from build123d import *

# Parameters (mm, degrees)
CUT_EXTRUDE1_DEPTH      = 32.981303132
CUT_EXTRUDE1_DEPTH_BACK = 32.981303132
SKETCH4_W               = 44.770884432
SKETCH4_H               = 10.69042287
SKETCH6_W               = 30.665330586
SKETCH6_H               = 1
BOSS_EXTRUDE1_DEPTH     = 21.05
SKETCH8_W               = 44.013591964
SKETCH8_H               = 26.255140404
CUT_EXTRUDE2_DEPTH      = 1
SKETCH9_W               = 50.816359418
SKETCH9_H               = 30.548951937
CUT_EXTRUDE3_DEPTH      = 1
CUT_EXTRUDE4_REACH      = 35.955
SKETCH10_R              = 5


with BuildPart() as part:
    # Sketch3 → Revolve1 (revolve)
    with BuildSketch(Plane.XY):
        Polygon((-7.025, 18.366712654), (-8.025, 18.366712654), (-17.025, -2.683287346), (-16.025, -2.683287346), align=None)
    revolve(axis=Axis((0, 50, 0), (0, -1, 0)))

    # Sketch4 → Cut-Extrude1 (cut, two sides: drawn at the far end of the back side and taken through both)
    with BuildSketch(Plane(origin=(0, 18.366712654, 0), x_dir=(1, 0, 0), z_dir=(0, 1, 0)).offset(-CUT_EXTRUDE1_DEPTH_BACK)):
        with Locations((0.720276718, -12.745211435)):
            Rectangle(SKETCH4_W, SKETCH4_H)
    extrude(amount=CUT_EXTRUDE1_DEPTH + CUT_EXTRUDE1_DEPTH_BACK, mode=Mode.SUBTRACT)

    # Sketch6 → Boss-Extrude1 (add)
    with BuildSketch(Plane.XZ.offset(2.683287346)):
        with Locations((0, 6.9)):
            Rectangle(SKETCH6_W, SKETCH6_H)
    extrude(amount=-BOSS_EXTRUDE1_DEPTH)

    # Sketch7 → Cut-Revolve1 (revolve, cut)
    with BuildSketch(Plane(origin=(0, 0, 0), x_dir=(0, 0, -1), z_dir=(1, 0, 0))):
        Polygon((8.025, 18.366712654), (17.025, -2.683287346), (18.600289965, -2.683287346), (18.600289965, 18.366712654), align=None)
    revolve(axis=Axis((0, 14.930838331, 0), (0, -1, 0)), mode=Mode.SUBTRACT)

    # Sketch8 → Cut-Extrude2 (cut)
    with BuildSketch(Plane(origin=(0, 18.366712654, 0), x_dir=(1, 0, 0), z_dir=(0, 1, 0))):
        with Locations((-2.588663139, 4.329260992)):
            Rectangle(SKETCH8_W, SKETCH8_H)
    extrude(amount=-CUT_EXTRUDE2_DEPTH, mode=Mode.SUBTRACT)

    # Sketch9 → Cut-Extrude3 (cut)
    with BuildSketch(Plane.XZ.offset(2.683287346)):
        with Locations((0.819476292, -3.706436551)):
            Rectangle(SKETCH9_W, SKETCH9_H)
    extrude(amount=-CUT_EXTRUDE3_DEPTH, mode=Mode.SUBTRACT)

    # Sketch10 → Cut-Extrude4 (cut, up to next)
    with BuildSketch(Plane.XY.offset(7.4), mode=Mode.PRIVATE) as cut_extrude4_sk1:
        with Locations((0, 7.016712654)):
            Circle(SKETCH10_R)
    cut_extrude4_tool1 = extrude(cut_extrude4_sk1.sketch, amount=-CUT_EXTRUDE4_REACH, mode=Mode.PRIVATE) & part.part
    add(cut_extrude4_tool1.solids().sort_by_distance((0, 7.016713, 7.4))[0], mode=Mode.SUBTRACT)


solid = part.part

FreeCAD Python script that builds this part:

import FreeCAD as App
import Part
import Sketcher

V = App.Vector

doc = App.newDocument("Part")
body = doc.addObject("PartDesign::Body", "Body")

sketch1 = body.newObject("Sketcher::SketchObject", "Sketch")
sketch1.AttachmentSupport = (doc.getObject("XY_Plane"), [""])
sketch1.MapMode = "FlatFace"
sketch1.addGeometry([
    Part.LineSegment(V(-7, 18.4, 0), V(-8, 18.4, 0)),
    Part.LineSegment(V(-8, 18.4, 0), V(-17, -2.7, 0)),
    Part.LineSegment(V(-17, -2.7, 0), V(-16, -2.7, 0)),
    Part.LineSegment(V(-16, -2.7, 0), V(-7, 18.4, 0)),
], False)
sketch1.addConstraint([
    Sketcher.Constraint("Coincident", 0, 2, 1, 1),
    Sketcher.Constraint("Coincident", 1, 2, 2, 1),
    Sketcher.Constraint("Coincident", 2, 2, 3, 1),
    Sketcher.Constraint("Coincident", 3, 2, 0, 1),
    Sketcher.Constraint("Horizontal", 0),
    Sketcher.Constraint("Horizontal", 2),
    Sketcher.Constraint("Parallel", 1, 3),
    Sketcher.Constraint("DistanceX", 0, 2, 0, 1, 1.0),
    Sketcher.Constraint("DistanceX", 1, 2, 0, 2, 9.0),
    Sketcher.Constraint("DistanceY", 1, 2, 0, 2, 21.05),
    Sketcher.Constraint("DistanceX", 0, 2, -1, 1, 8.025),
    Sketcher.Constraint("DistanceY", -1, 1, 0, 2, 18.366713),
])
revolution = body.newObject("PartDesign::Revolution", "Revolution")
revolution.Profile = sketch1
revolution.ReferenceAxis = (sketch1, ["V_Axis"])
revolution.Angle = 360

sketch2 = body.newObject("Sketcher::SketchObject", "Sketch001")
sketch2.AttachmentSupport = (doc.getObject("XZ_Plane"), [""])
sketch2.MapMode = "FlatFace"
sketch2.AttachmentOffset = App.Placement(V(0, 0, -18.366713), App.Rotation())
sketch2.addGeometry([
    Part.LineSegment(V(-22, 7, 0), V(-22, 18, 0)),
    Part.LineSegment(V(-22, 18, 0), V(23, 18, 0)),
    Part.LineSegment(V(23, 18, 0), V(23, 7, 0)),
    Part.LineSegment(V(23, 7, 0), V(-22, 7, 0)),
], False)
sketch2.addConstraint([
    Sketcher.Constraint("Coincident", 0, 2, 1, 1),
    Sketcher.Constraint("Coincident", 1, 2, 2, 1),
    Sketcher.Constraint("Coincident", 2, 2, 3, 1),
    Sketcher.Constraint("Coincident", 3, 2, 0, 1),
    Sketcher.Constraint("Vertical", 0),
    Sketcher.Constraint("Horizontal", 1),
    Sketcher.Constraint("Vertical", 2),
    Sketcher.Constraint("Horizontal", 3),
    Sketcher.Constraint("DistanceY", -1, 1, 2, 2, 7.4),
    Sketcher.Constraint("DistanceX", 1, 1, 1, 2, 44.770884),
    Sketcher.Constraint("DistanceY", 0, 1, 0, 2, 10.690423),
    Sketcher.Constraint("DistanceX", -1, 1, 1, 2, 23.105719),
])
pocket1 = body.newObject("PartDesign::Pocket", "Pocket")
pocket1.Profile = sketch2
pocket1.Type = "ThroughAll"
pocket1.Midplane = True

sketch3 = body.newObject("Sketcher::SketchObject", "Sketch002")
sketch3.AttachmentSupport = (doc.getObject("XZ_Plane"), [""])
sketch3.MapMode = "FlatFace"
sketch3.AttachmentOffset = App.Placement(V(0, 0, 2.683287), App.Rotation())
sketch3.addGeometry([
    Part.LineSegment(V(-15.3, 7.4, 0), V(-15.3, 6.4, 0)),
    Part.LineSegment(V(-15.3, 6.4, 0), V(15.3, 6.4, 0)),
    Part.LineSegment(V(15.3, 6.4, 0), V(15.3, 7.4, 0)),
    Part.LineSegment(V(15.3, 7.4, 0), V(-15.3, 7.4, 0)),
], False)
sketch3.addConstraint([
    Sketcher.Constraint("Coincident", 0, 2, 1, 1),
    Sketcher.Constraint("Coincident", 1, 2, 2, 1),
    Sketcher.Constraint("Coincident", 2, 2, 3, 1),
    Sketcher.Constraint("Coincident", 3, 2, 0, 1),
    Sketcher.Constraint("Vertical", 0),
    Sketcher.Constraint("Horizontal", 1),
    Sketcher.Constraint("Vertical", 2),
    Sketcher.Constraint("Horizontal", 3),
    Sketcher.Constraint("DistanceY", 0, 2, 0, 1, 1.0),
    Sketcher.Constraint("DistanceY", -1, 1, 0, 2, 6.4),
    Sketcher.Constraint("DistanceX", 1, 1, 1, 2, 30.665331),
    Sketcher.Constraint("DistanceX", 0, 2, -1, 1, 15.332665),
])
pad1 = body.newObject("PartDesign::Pad", "Pad")
pad1.Profile = sketch3
pad1.Length = 21.05
pad1.Reversed = True

sketch4 = body.newObject("Sketcher::SketchObject", "Sketch003")
sketch4.AttachmentSupport = (doc.getObject("YZ_Plane"), [""])
sketch4.MapMode = "FlatFace"
sketch4.addGeometry([
    Part.LineSegment(V(18.4, -8, 0), V(-2.7, -17, 0)),
    Part.LineSegment(V(-2.7, -17, 0), V(-2.7, -18.6, 0)),
    Part.LineSegment(V(-2.7, -18.6, 0), V(18.4, -18.6, 0)),
    Part.LineSegment(V(18.4, -18.6, 0), V(18.4, -8, 0)),
], False)
sketch4.addConstraint([
    Sketcher.Constraint("Coincident", 0, 2, 1, 1),
    Sketcher.Constraint("Coincident", 1, 2, 2, 1),
    Sketcher.Constraint("Coincident", 2, 2, 3, 1),
    Sketcher.Constraint("Coincident", 3, 2, 0, 1),
    Sketcher.Constraint("Vertical", 1),
    Sketcher.Constraint("Horizontal", 2),
    Sketcher.Constraint("Vertical", 3),
    Sketcher.Constraint("DistanceY", 0, 2, 3, 2, 9.0),
    Sketcher.Constraint("DistanceX", 2, 1, 2, 2, 21.05),
    Sketcher.Constraint("DistanceY", 0, 2, -1, 1, 17.025),
    Sketcher.Constraint("DistanceY", 1, 2, 1, 1, 1.57529),
    Sketcher.Constraint("DistanceX", 0, 2, -1, 1, 2.683287),
])
groove = body.newObject("PartDesign::Groove", "Groove")
groove.Profile = sketch4
groove.ReferenceAxis = (sketch4, ["H_Axis"])
groove.Angle = 360

sketch5 = body.newObject("Sketcher::SketchObject", "Sketch004")
sketch5.AttachmentSupport = (doc.getObject("XZ_Plane"), [""])
sketch5.MapMode = "FlatFace"
sketch5.AttachmentOffset = App.Placement(V(0, 0, -18.366713), App.Rotation())
sketch5.addGeometry([
    Part.LineSegment(V(-25, -17, 0), V(-25, 9, 0)),
    Part.LineSegment(V(-25, 9, 0), V(19, 9, 0)),
    Part.LineSegment(V(19, 9, 0), V(19, -17, 0)),
    Part.LineSegment(V(19, -17, 0), V(-25, -17, 0)),
], False)
sketch5.addConstraint([
    Sketcher.Constraint("Coincident", 0, 2, 1, 1),
    Sketcher.Constraint("Coincident", 1, 2, 2, 1),
    Sketcher.Constraint("Coincident", 2, 2, 3, 1),
    Sketcher.Constraint("Coincident", 3, 2, 0, 1),
    Sketcher.Constraint("Vertical", 0),
    Sketcher.Constraint("Horizontal", 1),
    Sketcher.Constraint("Vertical", 2),
    Sketcher.Constraint("Horizontal", 3),
    Sketcher.Constraint("DistanceX", 1, 1, 1, 2, 44.013592),
    Sketcher.Constraint("DistanceY", 0, 1, 0, 2, 26.25514),
    Sketcher.Constraint("DistanceX", 0, 2, -1, 1, 24.595459),
    Sketcher.Constraint("DistanceY", -1, 1, 0, 2, 8.798309),
])
pocket2 = body.newObject("PartDesign::Pocket", "Pocket001")
pocket2.Profile = sketch5
pocket2.Length = 1
pocket2.Reversed = True

sketch6 = body.newObject("Sketcher::SketchObject", "Sketch005")
sketch6.AttachmentSupport = (doc.getObject("XZ_Plane"), [""])
sketch6.MapMode = "FlatFace"
sketch6.AttachmentOffset = App.Placement(V(0, 0, 2.683287), App.Rotation())
sketch6.addGeometry([
    Part.LineSegment(V(-25, 12, 0), V(-25, -19, 0)),
    Part.LineSegment(V(-25, -19, 0), V(26, -19, 0)),
    Part.LineSegment(V(26, -19, 0), V(26, 12, 0)),
    Part.LineSegment(V(26, 12, 0), V(-25, 12, 0)),
], False)
sketch6.addConstraint([
    Sketcher.Constraint("Coincident", 0, 2, 1, 1),
    Sketcher.Constraint("Coincident", 1, 2, 2, 1),
    Sketcher.Constraint("Coincident", 2, 2, 3, 1),
    Sketcher.Constraint("Coincident", 3, 2, 0, 1),
    Sketcher.Constraint("Vertical", 0),
    Sketcher.Constraint("Horizontal", 1),
    Sketcher.Constraint("Vertical", 2),
    Sketcher.Constraint("Horizontal", 3),
    Sketcher.Constraint("DistanceX", 1, 1, 1, 2, 50.816359),
    Sketcher.Constraint("DistanceY", 0, 2, 0, 1, 30.548952),
    Sketcher.Constraint("DistanceY", -1, 1, 2, 2, 11.568039),
    Sketcher.Constraint("DistanceX", 0, 2, -1, 1, 24.588703),
])
pocket3 = body.newObject("PartDesign::Pocket", "Pocket002")
pocket3.Profile = sketch6
pocket3.Length = 1

sketch7 = body.newObject("Sketcher::SketchObject", "Sketch006")
sketch7.AttachmentSupport = (doc.getObject("XY_Plane"), [""])
sketch7.MapMode = "FlatFace"
sketch7.AttachmentOffset = App.Placement(V(0, 0, 7.4), App.Rotation())
sketch7.addGeometry(Part.Circle(V(0, 7, 0), V(0, 0, 1), 5), False)
sketch7.addConstraint([
    Sketcher.Constraint("PointOnObject", 0, 3, -2),
    Sketcher.Constraint("Diameter", 0, 10.0),
    Sketcher.Constraint("DistanceY", -1, 1, 0, 3, 7.016713),
])
pocket4 = body.newObject("PartDesign::Pocket", "Pocket003")
pocket4.Profile = sketch7
pocket4.Type = "UpToFirst"

doc.recompute()
